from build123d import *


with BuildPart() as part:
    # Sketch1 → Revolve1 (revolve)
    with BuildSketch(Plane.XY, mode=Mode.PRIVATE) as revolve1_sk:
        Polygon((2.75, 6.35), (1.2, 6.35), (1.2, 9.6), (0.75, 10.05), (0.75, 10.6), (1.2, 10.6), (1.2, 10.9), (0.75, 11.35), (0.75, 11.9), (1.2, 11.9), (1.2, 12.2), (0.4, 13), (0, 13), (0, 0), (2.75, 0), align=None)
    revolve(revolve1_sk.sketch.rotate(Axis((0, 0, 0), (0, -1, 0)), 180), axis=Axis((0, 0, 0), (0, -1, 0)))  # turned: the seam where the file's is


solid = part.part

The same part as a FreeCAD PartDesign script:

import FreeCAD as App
import Part
import Sketcher
from FreeCAD import Vector
Q = App.Units.Quantity


def add_polygon(sketch, points):
    """Adds a closed chain of lines whose ends are joined by coincident constraints."""
    first, n = sketch.GeometryCount, len(points)
    for a, b in zip(points, points[1:] + points[:1]):
        sketch.addGeometry(Part.LineSegment(App.Vector(*a, 0), App.Vector(*b, 0)), False)
    for i in range(n):
        sketch.addConstraint(Sketcher.Constraint("Coincident", first + i, 2, first + (i + 1) % n, 1))

doc = App.newDocument("Part")
params = doc.addObject("Spreadsheet::Sheet", "Params")
for row, (alias, value) in enumerate([
    ("sketch1_height", "13 mm"),
    ("sketch1_width", "0.4 mm"),
    ("sketch1_height2", "0.3 mm"),
    ("sketch1_width2", "1.55 mm"),
    ("sketch1_width3", "2.75 mm"),
    ("revolution_angle", "360 deg"),
], start=1):
    params.set(f"A{row}", alias)
    params.set(f"B{row}", "=" + value)
    params.setAlias(f"B{row}", alias)

body = doc.addObject("PartDesign::Body", "Body")

sketch1 = doc.addObject("Sketcher::SketchObject", "Sketch")
body.addObject(sketch1)
sketch1.AttachmentSupport = (doc.XY_Plane, [""])
sketch1.MapMode = "FlatFace"
add_polygon(sketch1, [(2.75, 6.35), (1.2, 6.35), (1.2, 9.6), (0.75, 10.05), (0.75, 10.6), (1.2, 10.6), (1.2, 10.9), (0.75, 11.35), (0.75, 11.9), (1.2, 11.9), (1.2, 12.2), (0.4, 13), (0, 13), (0, 0), (2.75, 0)])
sketch1.addConstraint([
    Sketcher.Constraint("Horizontal", 0),
    Sketcher.Constraint("Vertical", 1),
    Sketcher.Constraint("Vertical", 3),
    Sketcher.Constraint("Horizontal", 4),
    Sketcher.Constraint("Vertical", 5),
    Sketcher.Constraint("Vertical", 7),
    Sketcher.Constraint("Horizontal", 8),
    Sketcher.Constraint("Vertical", 9),
    Sketcher.Constraint("Horizontal", 11),
    Sketcher.Constraint("Vertical", 12),
    Sketcher.Constraint("Horizontal", 13),
    Sketcher.Constraint("Vertical", 14),
    Sketcher.Constraint("Coincident", 12, 2, -1, 1),
    Sketcher.Constraint("Parallel", 2, 6),
    Sketcher.Constraint("Parallel", 6, 10),
    Sketcher.Constraint("Vertical", 1, 2, 4, 2),
    Sketcher.Constraint("Vertical", 3, 2, 6, 2),
    Sketcher.Constraint("Vertical", 5, 2, 8, 2),
    Sketcher.Constraint("Equal", 3, 7),
    Sketcher.Constraint("Equal", 5, 9),
    Sketcher.Constraint("DistanceY", 12, 2, 12, 1, Q("13 mm")),
    Sketcher.Constraint("Angle", 2, Q("135 deg")),
    Sketcher.Constraint("DistanceX", 11, 2, 11, 1, Q("0.4 mm")),
    Sketcher.Constraint("DistanceY", 5, 1, 5, 2, Q("0.3 mm")),
    Sketcher.Constraint("DistanceY", 1, 2, 3, 2, Q("1 mm")),
    Sketcher.Constraint("DistanceX", 2, 2, 13, 2, Q("2 mm")),
    Sketcher.Constraint("DistanceX", 0, 2, 0, 1, Q("1.55 mm")),
    Sketcher.Constraint("DistanceX", 13, 1, 13, 2, Q("2.75 mm")),
    Sketcher.Constraint("DistanceY", 1, 1, 1, 2, Q("3.25 mm")),
])
sketch1.setExpression("Constraints[35]", "Params.sketch1_height")
sketch1.setExpression("Constraints[37]", "Params.sketch1_width")
sketch1.setExpression("Constraints[38]", "Params.sketch1_height2")
sketch1.setExpression("Constraints[41]", "Params.sketch1_width2")
sketch1.setExpression("Constraints[42]", "Params.sketch1_width3")
revolution = doc.addObject("PartDesign::Revolution", "Revolution")
body.addObject(revolution)
revolution.Profile = sketch1
revolution.ReferenceAxis = (sketch1, ["V_Axis"])
revolution.setExpression("Angle", "Params.revolution_angle")

doc.recompute()
